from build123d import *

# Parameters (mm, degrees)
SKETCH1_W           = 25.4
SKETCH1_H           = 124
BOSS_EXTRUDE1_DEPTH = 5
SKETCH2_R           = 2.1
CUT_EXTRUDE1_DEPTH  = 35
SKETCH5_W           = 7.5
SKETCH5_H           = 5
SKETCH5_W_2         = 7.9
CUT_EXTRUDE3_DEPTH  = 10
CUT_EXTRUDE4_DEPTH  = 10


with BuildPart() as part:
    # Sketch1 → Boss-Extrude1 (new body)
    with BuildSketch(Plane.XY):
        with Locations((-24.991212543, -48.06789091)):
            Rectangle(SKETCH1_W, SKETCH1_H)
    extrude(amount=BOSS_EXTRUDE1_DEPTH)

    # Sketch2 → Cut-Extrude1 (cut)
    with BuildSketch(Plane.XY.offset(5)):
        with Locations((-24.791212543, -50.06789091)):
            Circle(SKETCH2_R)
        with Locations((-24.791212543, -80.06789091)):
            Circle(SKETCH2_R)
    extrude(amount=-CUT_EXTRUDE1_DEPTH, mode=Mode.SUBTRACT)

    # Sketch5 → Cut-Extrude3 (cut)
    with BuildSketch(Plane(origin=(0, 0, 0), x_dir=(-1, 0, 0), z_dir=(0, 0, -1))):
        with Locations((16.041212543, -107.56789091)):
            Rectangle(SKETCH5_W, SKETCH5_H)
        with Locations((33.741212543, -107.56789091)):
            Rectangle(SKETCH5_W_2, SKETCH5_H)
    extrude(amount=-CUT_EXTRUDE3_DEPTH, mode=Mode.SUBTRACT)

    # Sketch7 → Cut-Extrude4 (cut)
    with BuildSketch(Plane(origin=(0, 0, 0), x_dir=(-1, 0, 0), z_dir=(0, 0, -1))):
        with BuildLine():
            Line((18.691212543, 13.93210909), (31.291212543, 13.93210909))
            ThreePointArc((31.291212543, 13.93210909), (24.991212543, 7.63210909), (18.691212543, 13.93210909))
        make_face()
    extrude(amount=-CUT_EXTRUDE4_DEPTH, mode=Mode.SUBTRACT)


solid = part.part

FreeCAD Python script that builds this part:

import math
import FreeCAD as App
import Part
import Sketcher


def add_polygon(sketch, points):
    """Adds a closed chain of lines whose ends are joined by coincident constraints."""
    first, n = sketch.GeometryCount, len(points)
    for a, b in zip(points, points[1:] + points[:1]):
        sketch.addGeometry(Part.LineSegment(App.Vector(*a, 0), App.Vector(*b, 0)), False)
    for i in range(n):
        sketch.addConstraint(Sketcher.Constraint("Coincident", first + i, 2, first + (i + 1) % n, 1))

doc = App.newDocument("Part")
body = doc.addObject("PartDesign::Body", "Body")

# Sketch on XY plane
sketch1 = body.newObject("Sketcher::SketchObject", "Sketch")
sketch1.AttachmentSupport = (doc.getObject("XY_Plane"), [""])
sketch1.MapMode = "FlatFace"
add_polygon(sketch1, [(-38, 14), (-38, -110), (-12, -110), (-12, 14)])  # lines 0-3
sketch1.addConstraint([
    Sketcher.Constraint("Vertical", 0),
    Sketcher.Constraint("Horizontal", 1),
    Sketcher.Constraint("Vertical", 2),
    Sketcher.Constraint("Horizontal", 3),
    Sketcher.Constraint("DistanceY", 0, 2, 0, 1, 124.0),
    Sketcher.Constraint("DistanceX", 1, 1, 1, 2, 25.4),
    Sketcher.Constraint("DistanceY", 0, 2, -1, 1, 110.067891),
    Sketcher.Constraint("DistanceX", 0, 2, -1, 1, 37.691213),
])
pad1 = body.newObject("PartDesign::Pad", "Pad")
pad1.Profile = sketch1
pad1.Length = 5

# Sketch on XY plane
sketch2 = body.newObject("Sketcher::SketchObject", "Sketch001")
sketch2.AttachmentSupport = (doc.getObject("XY_Plane"), [""])
sketch2.MapMode = "FlatFace"
sketch2.AttachmentOffset = App.Placement(App.Vector(0, 0, 5), App.Rotation())
sketch2.addGeometry([
    Part.Circle(App.Vector(-24.8, -50.1, 0), App.Vector(0, 0, 1), 2.1),
    Part.Circle(App.Vector(-24.8, -80.1, 0), App.Vector(0, 0, 1), 2.1),
], False)
sketch2.addConstraint([
    Sketcher.Constraint("Equal", 0, 1),
    Sketcher.Constraint("Vertical", 0, 3, 1, 3),
    Sketcher.Constraint("Diameter", 0, 4.2),
    Sketcher.Constraint("DistanceY", 1, 3, 0, 3, 30.0),
    Sketcher.Constraint("DistanceY", 0, 3, -1, 1, 50.067891),
    Sketcher.Constraint("DistanceX", 0, 3, -1, 1, 24.791213),
])
pocket1 = body.newObject("PartDesign::Pocket", "Pocket")
pocket1.Profile = sketch2
pocket1.Length = 35

# Sketch on XY plane
sketch3 = body.newObject("Sketcher::SketchObject", "Sketch002")
sketch3.AttachmentSupport = (doc.getObject("XY_Plane"), [""])
sketch3.MapMode = "FlatFace"
add_polygon(sketch3, [(-12, -105), (-12, -110), (-20, -110), (-20, -105)])  # lines 0-3
add_polygon(sketch3, [(-30, -105), (-30, -110), (-38, -110), (-38, -105)])  # lines 4-7
sketch3.addConstraint([
    Sketcher.Constraint("Vertical", 0),
    Sketcher.Constraint("Horizontal", 1),
    Sketcher.Constraint("Vertical", 2),
    Sketcher.Constraint("Horizontal", 3),
    Sketcher.Constraint("Vertical", 4),
    Sketcher.Constraint("Horizontal", 5),
    Sketcher.Constraint("Vertical", 6),
    Sketcher.Constraint("Horizontal", 7),
    Sketcher.Constraint("Horizontal", 1, 2, 4, 2),
    Sketcher.Constraint("Horizontal", 3, 2, 6, 2),
    Sketcher.Constraint("DistanceY", 0, 2, 0, 1, 5.0),
    Sketcher.Constraint("DistanceX", 1, 2, 1, 1, 7.5),
    Sketcher.Constraint("DistanceX", 5, 2, 5, 1, 7.9),
    Sketcher.Constraint("DistanceX", 4, 2, 1, 2, 10.0),
    Sketcher.Constraint("DistanceY", 0, 2, -1, 1, 110.067891),
    Sketcher.Constraint("DistanceX", 0, 2, -1, 1, 12.291213),
])
pocket2 = body.newObject("PartDesign::Pocket", "Pocket001")
pocket2.Profile = sketch3
pocket2.Length = 10
pocket2.Reversed = True

# Sketch on XY plane
sketch4 = body.newObject("Sketcher::SketchObject", "Sketch003")
sketch4.AttachmentSupport = (doc.getObject("XY_Plane"), [""])
sketch4.MapMode = "FlatFace"
sketch4.addGeometry([
    Part.LineSegment(App.Vector(-31, 14, 0), App.Vector(-19, 14, 0)),
    Part.ArcOfCircle(Part.Circle(App.Vector(-25, 14, 0), App.Vector(0, 0, 1), 6), math.radians(180), math.radians(360)),
], False)
sketch4.addConstraint([
    Sketcher.Constraint("Coincident", 0, 1, 1, 1),
    Sketcher.Constraint("Coincident", 1, 2, 0, 2),
    Sketcher.Constraint("Horizontal", 0),
    Sketcher.Constraint("Horizontal", 1, 3, 0, 1),
    Sketcher.Constraint("Radius", 1, 6.3),
    Sketcher.Constraint("DistanceY", -1, 1, 1, 3, 13.932109),
    Sketcher.Constraint("DistanceX", 1, 3, -1, 1, 24.991213),
])
pocket3 = body.newObject("PartDesign::Pocket", "Pocket002")
pocket3.Profile = sketch4
pocket3.Length = 10
pocket3.Reversed = True

doc.recompute()
